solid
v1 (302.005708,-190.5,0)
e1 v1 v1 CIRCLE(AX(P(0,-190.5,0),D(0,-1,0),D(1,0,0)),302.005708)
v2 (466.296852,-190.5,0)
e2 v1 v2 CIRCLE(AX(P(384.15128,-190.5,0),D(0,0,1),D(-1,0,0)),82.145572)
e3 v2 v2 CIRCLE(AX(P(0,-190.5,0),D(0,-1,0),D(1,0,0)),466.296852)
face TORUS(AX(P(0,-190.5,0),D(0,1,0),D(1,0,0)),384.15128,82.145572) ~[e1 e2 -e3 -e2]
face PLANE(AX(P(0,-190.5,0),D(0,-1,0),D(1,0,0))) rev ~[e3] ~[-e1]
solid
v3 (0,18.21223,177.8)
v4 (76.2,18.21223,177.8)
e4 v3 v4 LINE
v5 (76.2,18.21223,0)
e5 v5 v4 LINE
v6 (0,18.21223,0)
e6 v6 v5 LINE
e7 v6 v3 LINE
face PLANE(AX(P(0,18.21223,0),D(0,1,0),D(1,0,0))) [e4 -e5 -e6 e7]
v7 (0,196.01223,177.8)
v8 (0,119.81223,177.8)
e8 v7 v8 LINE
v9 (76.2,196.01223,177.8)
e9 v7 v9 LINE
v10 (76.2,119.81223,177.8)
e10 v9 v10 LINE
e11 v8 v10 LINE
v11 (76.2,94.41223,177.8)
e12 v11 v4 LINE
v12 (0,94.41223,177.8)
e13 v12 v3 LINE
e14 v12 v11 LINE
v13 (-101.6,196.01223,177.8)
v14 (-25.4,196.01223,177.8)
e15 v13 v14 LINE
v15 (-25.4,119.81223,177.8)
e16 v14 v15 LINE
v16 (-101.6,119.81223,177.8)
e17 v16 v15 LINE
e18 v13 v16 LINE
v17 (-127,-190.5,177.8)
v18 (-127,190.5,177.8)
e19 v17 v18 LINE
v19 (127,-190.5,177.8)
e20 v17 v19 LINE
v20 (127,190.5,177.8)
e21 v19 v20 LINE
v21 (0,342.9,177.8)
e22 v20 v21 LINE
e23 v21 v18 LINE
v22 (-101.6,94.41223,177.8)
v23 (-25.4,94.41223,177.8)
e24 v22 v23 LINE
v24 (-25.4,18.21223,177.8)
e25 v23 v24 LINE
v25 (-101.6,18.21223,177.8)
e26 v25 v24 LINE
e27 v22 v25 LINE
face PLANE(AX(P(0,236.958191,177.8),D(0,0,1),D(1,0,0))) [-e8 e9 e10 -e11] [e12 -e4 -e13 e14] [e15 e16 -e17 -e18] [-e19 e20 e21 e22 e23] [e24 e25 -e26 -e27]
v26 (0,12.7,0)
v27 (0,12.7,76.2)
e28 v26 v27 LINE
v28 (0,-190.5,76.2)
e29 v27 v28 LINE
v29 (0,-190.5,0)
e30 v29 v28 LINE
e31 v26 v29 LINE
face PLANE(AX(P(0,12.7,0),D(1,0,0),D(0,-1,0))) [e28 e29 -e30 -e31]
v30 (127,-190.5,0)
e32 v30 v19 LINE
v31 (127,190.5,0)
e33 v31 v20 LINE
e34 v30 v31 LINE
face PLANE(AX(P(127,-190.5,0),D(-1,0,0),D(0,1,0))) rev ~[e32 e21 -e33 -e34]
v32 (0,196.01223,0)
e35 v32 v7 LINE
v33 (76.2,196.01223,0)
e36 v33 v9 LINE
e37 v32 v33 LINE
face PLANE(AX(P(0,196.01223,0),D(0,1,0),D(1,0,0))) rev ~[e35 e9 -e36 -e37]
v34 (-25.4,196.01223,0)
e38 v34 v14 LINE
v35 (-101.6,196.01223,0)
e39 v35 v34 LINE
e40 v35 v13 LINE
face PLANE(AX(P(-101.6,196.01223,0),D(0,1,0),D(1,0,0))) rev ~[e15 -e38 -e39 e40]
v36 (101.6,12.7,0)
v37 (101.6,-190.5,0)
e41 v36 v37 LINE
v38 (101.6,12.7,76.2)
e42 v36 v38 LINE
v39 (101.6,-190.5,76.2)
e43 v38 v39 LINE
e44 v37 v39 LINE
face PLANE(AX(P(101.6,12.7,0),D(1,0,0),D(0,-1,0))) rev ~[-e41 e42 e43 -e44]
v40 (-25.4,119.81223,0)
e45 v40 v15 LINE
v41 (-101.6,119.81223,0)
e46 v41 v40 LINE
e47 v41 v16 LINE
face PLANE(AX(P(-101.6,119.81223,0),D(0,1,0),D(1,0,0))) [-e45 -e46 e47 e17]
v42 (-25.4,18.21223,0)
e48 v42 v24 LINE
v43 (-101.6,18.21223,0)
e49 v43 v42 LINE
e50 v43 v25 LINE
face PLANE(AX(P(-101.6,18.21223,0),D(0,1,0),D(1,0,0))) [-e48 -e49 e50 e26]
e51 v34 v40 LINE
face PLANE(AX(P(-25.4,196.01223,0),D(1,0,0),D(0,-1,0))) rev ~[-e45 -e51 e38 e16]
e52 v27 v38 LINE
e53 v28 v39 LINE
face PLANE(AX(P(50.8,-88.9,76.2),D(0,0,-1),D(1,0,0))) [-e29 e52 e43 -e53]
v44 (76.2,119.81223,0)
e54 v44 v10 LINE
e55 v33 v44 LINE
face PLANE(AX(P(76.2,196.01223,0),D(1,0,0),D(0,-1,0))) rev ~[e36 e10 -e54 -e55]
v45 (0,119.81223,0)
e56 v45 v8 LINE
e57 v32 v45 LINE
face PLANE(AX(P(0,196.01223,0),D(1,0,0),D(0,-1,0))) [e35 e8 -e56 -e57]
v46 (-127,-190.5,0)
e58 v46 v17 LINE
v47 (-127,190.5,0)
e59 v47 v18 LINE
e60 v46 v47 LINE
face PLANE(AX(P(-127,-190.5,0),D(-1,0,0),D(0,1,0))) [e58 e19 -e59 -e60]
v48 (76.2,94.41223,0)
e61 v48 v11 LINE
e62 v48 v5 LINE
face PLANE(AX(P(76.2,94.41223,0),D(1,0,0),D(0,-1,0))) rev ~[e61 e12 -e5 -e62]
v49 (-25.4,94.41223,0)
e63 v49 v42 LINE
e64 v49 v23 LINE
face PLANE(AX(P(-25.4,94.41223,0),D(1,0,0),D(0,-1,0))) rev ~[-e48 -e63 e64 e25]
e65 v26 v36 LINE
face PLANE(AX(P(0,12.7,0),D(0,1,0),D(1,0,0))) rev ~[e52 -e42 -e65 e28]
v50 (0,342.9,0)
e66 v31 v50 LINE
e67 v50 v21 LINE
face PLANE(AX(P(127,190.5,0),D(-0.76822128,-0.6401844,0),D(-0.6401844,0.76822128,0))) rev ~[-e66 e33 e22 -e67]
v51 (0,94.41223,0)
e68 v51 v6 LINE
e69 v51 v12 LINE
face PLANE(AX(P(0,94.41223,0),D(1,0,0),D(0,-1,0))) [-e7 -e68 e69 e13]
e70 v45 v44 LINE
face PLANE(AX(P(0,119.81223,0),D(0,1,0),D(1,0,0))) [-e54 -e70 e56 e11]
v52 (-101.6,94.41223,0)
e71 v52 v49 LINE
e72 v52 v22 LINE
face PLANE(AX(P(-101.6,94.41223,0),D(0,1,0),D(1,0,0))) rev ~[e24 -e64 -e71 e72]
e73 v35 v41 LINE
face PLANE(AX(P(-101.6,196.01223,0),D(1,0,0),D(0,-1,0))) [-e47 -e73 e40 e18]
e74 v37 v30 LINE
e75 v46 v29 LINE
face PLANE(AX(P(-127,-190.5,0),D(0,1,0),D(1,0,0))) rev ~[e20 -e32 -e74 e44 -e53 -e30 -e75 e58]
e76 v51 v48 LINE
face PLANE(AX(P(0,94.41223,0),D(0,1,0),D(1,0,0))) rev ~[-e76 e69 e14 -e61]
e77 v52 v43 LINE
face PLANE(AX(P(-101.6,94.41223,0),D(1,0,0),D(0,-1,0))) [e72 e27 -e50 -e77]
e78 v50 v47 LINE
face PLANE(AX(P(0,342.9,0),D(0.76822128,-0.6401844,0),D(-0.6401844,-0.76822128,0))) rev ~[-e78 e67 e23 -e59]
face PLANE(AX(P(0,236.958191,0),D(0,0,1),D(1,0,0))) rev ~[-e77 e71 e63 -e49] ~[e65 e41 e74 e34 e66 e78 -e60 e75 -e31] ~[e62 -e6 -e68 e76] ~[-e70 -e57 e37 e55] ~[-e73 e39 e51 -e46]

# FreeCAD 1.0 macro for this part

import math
import FreeCAD as App
import Part
import Sketcher

V = App.Vector
Q = App.Units.Quantity


def add_polygon(sketch, points):
    """Adds a closed chain of lines whose ends are joined by coincident constraints."""
    first, n = sketch.GeometryCount, len(points)
    for a, b in zip(points, points[1:] + points[:1]):
        sketch.addGeometry(Part.LineSegment(App.Vector(*a, 0), App.Vector(*b, 0)), False)
    for i in range(n):
        sketch.addConstraint(Sketcher.Constraint("Coincident", first + i, 2, first + (i + 1) % n, 1))

doc = App.newDocument("Part")
params = doc.addObject("Spreadsheet::Sheet", "Params")
for row, (alias, value) in enumerate([
    ("sketch1_width", "10 in"),
    ("sketch1_height", "15 in"),
    ("pad1_length", "7 in"),
    ("sketch2_width", "4 in"),
    ("sketch2_height", "8 in"),
    ("pocket1_length", "3 in"),
    ("sketch3_width", "3 in"),
    ("revolution_angle", "360 deg"),
], start=1):
    params.set(f"A{row}", alias)
    params.set(f"B{row}", "=" + value)
    params.setAlias(f"B{row}", alias)

body = doc.addObject("PartDesign::Body", "Body")

# Sketch on XY plane
sketch1 = body.newObject("Sketcher::SketchObject", "Sketch")
sketch1.AttachmentSupport = (doc.getObject("XY_Plane"), [""])
sketch1.MapMode = "FlatFace"
add_polygon(sketch1, [(0, 343), (-127, 190), (-127, -190), (127, -190), (127, 190)])  # lines 0-4
sketch1.addConstraint([
    Sketcher.Constraint("Vertical", 1),
    Sketcher.Constraint("Horizontal", 2),
    Sketcher.Constraint("Vertical", 3),
    Sketcher.Constraint("Symmetric", 0, 2, 2, 2, -1, 1),
    Sketcher.Constraint("PointOnObject", 4, 2, -2),
    Sketcher.Constraint("Horizontal", 0, 2, 3, 2),
    Sketcher.Constraint("DistanceX", 2, 1, 2, 2, Q("10 in")),
    Sketcher.Constraint("DistanceY", 1, 2, 1, 1, Q("15 in")),
    Sketcher.Constraint("DistanceY", 0, 2, 4, 2, Q("6 in")),
])
sketch1.setExpression("Constraints[11]", "Params.sketch1_width")
sketch1.setExpression("Constraints[12]", "Params.sketch1_height")
pad1 = body.newObject("PartDesign::Pad", "Pad")
pad1.Profile = sketch1
pad1.setExpression("Length", "Params.pad1_length")

# Sketch on XY plane
sketch2 = body.newObject("Sketcher::SketchObject", "Sketch001")
sketch2.AttachmentSupport = (doc.getObject("XY_Plane"), [""])
sketch2.MapMode = "FlatFace"
add_polygon(sketch2, [(0, -190), (0, 13), (102, 13), (102, -190)])  # lines 0-3
sketch2.addConstraint([
    Sketcher.Constraint("Vertical", 0),
    Sketcher.Constraint("Horizontal", 1),
    Sketcher.Constraint("Vertical", 2),
    Sketcher.Constraint("Horizontal", 3),
    Sketcher.Constraint("PointOnObject", 0, 2, -2),
    Sketcher.Constraint("DistanceX", 1, 1, 1, 2, Q("4 in")),
    Sketcher.Constraint("DistanceY", 0, 1, 0, 2, Q("8 in")),
    Sketcher.Constraint("DistanceY", -1, 1, 0, 2, Q("0.5 in")),
])
sketch2.setExpression("Constraints[9]", "Params.sketch2_width")
sketch2.setExpression("Constraints[10]", "Params.sketch2_height")
pocket1 = body.newObject("PartDesign::Pocket", "Pocket")
pocket1.Profile = sketch2
pocket1.setExpression("Length", "Params.pocket1_length")
pocket1.Reversed = True

# Sketch on XY plane
sketch3 = body.newObject("Sketcher::SketchObject", "Sketch002")
sketch3.AttachmentSupport = (doc.getObject("XY_Plane"), [""])
sketch3.MapMode = "FlatFace"
add_polygon(sketch3, [(0, 120), (0, 196), (76, 196), (76, 120)])  # lines 0-3
add_polygon(sketch3, [(0, 18), (0, 94), (76, 94), (76, 18)])  # lines 4-7
add_polygon(sketch3, [(-102, 18), (-102, 94), (-25, 94), (-25, 18)])  # lines 8-11
add_polygon(sketch3, [(-102, 120), (-102, 196), (-25, 196), (-25, 120)])  # lines 12-15
sketch3.addConstraint([
    Sketcher.Constraint("Vertical", 0),
    Sketcher.Constraint("Horizontal", 1),
    Sketcher.Constraint("Vertical", 2),
    Sketcher.Constraint("Horizontal", 3),
    Sketcher.Constraint("Vertical", 4),
    Sketcher.Constraint("Horizontal", 5),
    Sketcher.Constraint("Vertical", 6),
    Sketcher.Constraint("Horizontal", 7),
    Sketcher.Constraint("Vertical", 8),
    Sketcher.Constraint("Horizontal", 9),
    Sketcher.Constraint("Vertical", 10),
    Sketcher.Constraint("Horizontal", 11),
    Sketcher.Constraint("Vertical", 12),
    Sketcher.Constraint("Horizontal", 13),
    Sketcher.Constraint("Vertical", 14),
    Sketcher.Constraint("Horizontal", 15),
    Sketcher.Constraint("PointOnObject", 0, 2, -2),
    Sketcher.Constraint("PointOnObject", 4, 2, -2),
    Sketcher.Constraint("Horizontal", 5, 2, 8, 2),
    Sketcher.Constraint("Horizontal", 7, 2, 10, 2),
    Sketcher.Constraint("Horizontal", 1, 2, 12, 2),
    Sketcher.Constraint("Horizontal", 3, 2, 14, 2),
    Sketcher.Constraint("Vertical", 2, 2, 5, 2),
    Sketcher.Constraint("Vertical", 11, 2, 12, 2),
    Sketcher.Constraint("Vertical", 10, 2, 13, 2),
    Sketcher.Constraint("Equal", 7, 9),
    Sketcher.Constraint("Equal", 15, 0),
    Sketcher.Constraint("Equal", 2, 4),
    Sketcher.Constraint("DistanceX", 1, 1, 1, 2, Q("3 in")),
    Sketcher.Constraint("DistanceX", 8, 2, -1, 1, Q("4 in")),
    Sketcher.Constraint("DistanceY", 4, 2, 3, 2, Q("1 in")),
    Sketcher.Constraint("DistanceY", -1, 1, 0, 2, 196.01223),
])
sketch3.setExpression("Constraints[44]", "Params.sketch3_width")
pocket2 = body.newObject("PartDesign::Pocket", "Pocket001")
pocket2.Profile = sketch3
pocket2.Type = "ThroughAll"
pocket2.Reversed = True
body2 = doc.addObject("PartDesign::Body", "Body001")

# Sketch on XY plane
sketch4 = body2.newObject("Sketcher::SketchObject", "Sketch003")
sketch4.AttachmentSupport = (doc.getObject("XY_Plane001"), [""])
sketch4.MapMode = "FlatFace"
sketch4.addGeometry([
    Part.LineSegment(V(466, -190, 0), V(302, -190, 0)),
    Part.ArcOfCircle(Part.Circle(V(384, -190, 0), V(0, 0, 1), 82), math.radians(180), math.radians(360)),
], False)
sketch4.addConstraint([
    Sketcher.Constraint("Coincident", 0, 1, 1, 2),
    Sketcher.Constraint("Coincident", 1, 1, 0, 2),
    Sketcher.Constraint("Horizontal", 0),
    Sketcher.Constraint("Horizontal", 1, 3, 0, 1),
    Sketcher.Constraint("DistanceY", 1, 3, -1, 1, Q("7.5 in")),
    Sketcher.Constraint("Radius", 1, 82.145572),
    Sketcher.Constraint("DistanceX", -1, 1, 1, 3, 384.15128),
])
revolution = body2.newObject("PartDesign::Revolution", "Revolution")
revolution.Profile = sketch4
revolution.ReferenceAxis = (sketch4, ["V_Axis"])
revolution.setExpression("Angle", "Params.revolution_angle")

doc.recompute()
